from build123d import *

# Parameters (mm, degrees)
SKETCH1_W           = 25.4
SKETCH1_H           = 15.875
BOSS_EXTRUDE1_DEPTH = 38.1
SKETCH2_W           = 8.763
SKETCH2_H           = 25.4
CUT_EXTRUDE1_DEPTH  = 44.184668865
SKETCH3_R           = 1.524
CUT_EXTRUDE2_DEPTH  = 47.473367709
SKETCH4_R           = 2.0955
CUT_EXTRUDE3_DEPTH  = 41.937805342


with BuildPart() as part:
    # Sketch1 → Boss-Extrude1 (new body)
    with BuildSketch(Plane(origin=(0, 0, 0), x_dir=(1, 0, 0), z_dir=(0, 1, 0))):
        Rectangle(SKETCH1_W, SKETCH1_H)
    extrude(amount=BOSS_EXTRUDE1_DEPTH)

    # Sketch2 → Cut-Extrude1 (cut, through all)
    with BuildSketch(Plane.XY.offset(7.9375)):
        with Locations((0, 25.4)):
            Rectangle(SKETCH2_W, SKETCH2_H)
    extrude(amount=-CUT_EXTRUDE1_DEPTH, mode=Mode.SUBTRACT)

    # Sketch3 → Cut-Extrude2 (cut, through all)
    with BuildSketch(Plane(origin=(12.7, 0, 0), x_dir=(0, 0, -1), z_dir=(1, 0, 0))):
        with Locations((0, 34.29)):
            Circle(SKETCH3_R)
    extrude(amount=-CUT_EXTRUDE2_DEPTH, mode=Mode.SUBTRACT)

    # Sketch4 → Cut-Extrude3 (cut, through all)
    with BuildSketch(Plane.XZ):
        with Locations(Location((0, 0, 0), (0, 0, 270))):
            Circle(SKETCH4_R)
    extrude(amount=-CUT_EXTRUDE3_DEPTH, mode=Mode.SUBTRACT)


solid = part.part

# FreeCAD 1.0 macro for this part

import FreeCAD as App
import Part
import Sketcher

V = App.Vector
Q = App.Units.Quantity


def add_polygon(sketch, points):
    """Adds a closed chain of lines whose ends are joined by coincident constraints."""
    first, n = sketch.GeometryCount, len(points)
    for a, b in zip(points, points[1:] + points[:1]):
        sketch.addGeometry(Part.LineSegment(App.Vector(*a, 0), App.Vector(*b, 0)), False)
    for i in range(n):
        sketch.addConstraint(Sketcher.Constraint("Coincident", first + i, 2, first + (i + 1) % n, 1))

doc = App.newDocument("Part")
body = doc.addObject("PartDesign::Body", "Body")

# Sketch on XZ plane
sketch1 = body.newObject("Sketcher::SketchObject", "Sketch")
sketch1.AttachmentSupport = (doc.getObject("XZ_Plane"), [""])
sketch1.MapMode = "FlatFace"
add_polygon(sketch1, [(-13, -8), (-13, 8), (13, 8), (13, -8)])  # lines 0-3
sketch1.addConstraint(Sketcher.Constraint("Vertical", 0))
sketch1.addConstraint(Sketcher.Constraint("Horizontal", 1))
sketch1.addConstraint(Sketcher.Constraint("Vertical", 2))
sketch1.addConstraint(Sketcher.Constraint("Horizontal", 3))
sketch1.addConstraint(Sketcher.Constraint("Symmetric", 0, 2, 2, 2, -1, 1))
sketch1.addConstraint(Sketcher.Constraint("DistanceX", 1, 1, 1, 2, Q("1 in")))
sketch1.addConstraint(Sketcher.Constraint("DistanceY", 0, 1, 0, 2, Q("0.625 in")))
pad1 = body.newObject("PartDesign::Pad", "Pad")
pad1.Profile = sketch1
pad1.Length = Q("1.5 in")
pad1.Reversed = True

# Sketch on XY plane
sketch2 = body.newObject("Sketcher::SketchObject", "Sketch001")
sketch2.AttachmentSupport = (doc.getObject("XY_Plane"), [""])
sketch2.MapMode = "FlatFace"
sketch2.AttachmentOffset = App.Placement(V(0, 0, 0.3125 * 25.4), App.Rotation())
add_polygon(sketch2, [(-4, 38), (-4, 13), (4, 13), (4, 38)])  # lines 0-3
sketch2.addConstraint(Sketcher.Constraint("Vertical", 0))
sketch2.addConstraint(Sketcher.Constraint("Horizontal", 1))
sketch2.addConstraint(Sketcher.Constraint("Vertical", 2))
sketch2.addConstraint(Sketcher.Constraint("Horizontal", 3))
sketch2.addConstraint(Sketcher.Constraint("DistanceY", 0, 2, 0, 1, Q("1 in")))
sketch2.addConstraint(Sketcher.Constraint("DistanceY", -1, 1, 0, 2, Q("0.5 in")))
sketch2.addConstraint(Sketcher.Constraint("DistanceX", 1, 1, 1, 2, Q("0.345 in")))
sketch2.addConstraint(Sketcher.Constraint("DistanceX", 0, 2, -1, 1, Q("0.1725 in")))
pocket1 = body.newObject("PartDesign::Pocket", "Pocket")
pocket1.Profile = sketch2
pocket1.Type = "ThroughAll"

# Sketch on YZ plane
sketch3 = body.newObject("Sketcher::SketchObject", "Sketch002")
sketch3.AttachmentSupport = (doc.getObject("YZ_Plane"), [""])
sketch3.MapMode = "FlatFace"
sketch3.AttachmentOffset = App.Placement(V(0, 0, 0.5 * 25.4), App.Rotation())
sketch3.addGeometry(Part.Circle(V(34.3, 0, 0), V(0, 0, 1), 1.5), False)
sketch3.addConstraint(Sketcher.Constraint("PointOnObject", 0, 3, -1))
sketch3.addConstraint(Sketcher.Constraint("Diameter", 0, Q("0.12 in")))
sketch3.addConstraint(Sketcher.Constraint("DistanceX", -1, 1, 0, 3, Q("1.35 in")))
pocket2 = body.newObject("PartDesign::Pocket", "Pocket001")
pocket2.Profile = sketch3
pocket2.Type = "ThroughAll"

# Sketch on XZ plane
sketch4 = body.newObject("Sketcher::SketchObject", "Sketch003")
sketch4.AttachmentSupport = (doc.getObject("XZ_Plane"), [""])
sketch4.MapMode = "FlatFace"
sketch4.addGeometry(Part.Circle(V(0, 0, 0), V(0, 0, 1), 2.1), False)
sketch4.addConstraint(Sketcher.Constraint("Coincident", 0, 3, -1, 1))
sketch4.addConstraint(Sketcher.Constraint("Diameter", 0, Q("0.165 in")))
pocket3 = body.newObject("PartDesign::Pocket", "Pocket002")
pocket3.Profile = sketch4
pocket3.Type = "ThroughAll"

doc.recompute()
